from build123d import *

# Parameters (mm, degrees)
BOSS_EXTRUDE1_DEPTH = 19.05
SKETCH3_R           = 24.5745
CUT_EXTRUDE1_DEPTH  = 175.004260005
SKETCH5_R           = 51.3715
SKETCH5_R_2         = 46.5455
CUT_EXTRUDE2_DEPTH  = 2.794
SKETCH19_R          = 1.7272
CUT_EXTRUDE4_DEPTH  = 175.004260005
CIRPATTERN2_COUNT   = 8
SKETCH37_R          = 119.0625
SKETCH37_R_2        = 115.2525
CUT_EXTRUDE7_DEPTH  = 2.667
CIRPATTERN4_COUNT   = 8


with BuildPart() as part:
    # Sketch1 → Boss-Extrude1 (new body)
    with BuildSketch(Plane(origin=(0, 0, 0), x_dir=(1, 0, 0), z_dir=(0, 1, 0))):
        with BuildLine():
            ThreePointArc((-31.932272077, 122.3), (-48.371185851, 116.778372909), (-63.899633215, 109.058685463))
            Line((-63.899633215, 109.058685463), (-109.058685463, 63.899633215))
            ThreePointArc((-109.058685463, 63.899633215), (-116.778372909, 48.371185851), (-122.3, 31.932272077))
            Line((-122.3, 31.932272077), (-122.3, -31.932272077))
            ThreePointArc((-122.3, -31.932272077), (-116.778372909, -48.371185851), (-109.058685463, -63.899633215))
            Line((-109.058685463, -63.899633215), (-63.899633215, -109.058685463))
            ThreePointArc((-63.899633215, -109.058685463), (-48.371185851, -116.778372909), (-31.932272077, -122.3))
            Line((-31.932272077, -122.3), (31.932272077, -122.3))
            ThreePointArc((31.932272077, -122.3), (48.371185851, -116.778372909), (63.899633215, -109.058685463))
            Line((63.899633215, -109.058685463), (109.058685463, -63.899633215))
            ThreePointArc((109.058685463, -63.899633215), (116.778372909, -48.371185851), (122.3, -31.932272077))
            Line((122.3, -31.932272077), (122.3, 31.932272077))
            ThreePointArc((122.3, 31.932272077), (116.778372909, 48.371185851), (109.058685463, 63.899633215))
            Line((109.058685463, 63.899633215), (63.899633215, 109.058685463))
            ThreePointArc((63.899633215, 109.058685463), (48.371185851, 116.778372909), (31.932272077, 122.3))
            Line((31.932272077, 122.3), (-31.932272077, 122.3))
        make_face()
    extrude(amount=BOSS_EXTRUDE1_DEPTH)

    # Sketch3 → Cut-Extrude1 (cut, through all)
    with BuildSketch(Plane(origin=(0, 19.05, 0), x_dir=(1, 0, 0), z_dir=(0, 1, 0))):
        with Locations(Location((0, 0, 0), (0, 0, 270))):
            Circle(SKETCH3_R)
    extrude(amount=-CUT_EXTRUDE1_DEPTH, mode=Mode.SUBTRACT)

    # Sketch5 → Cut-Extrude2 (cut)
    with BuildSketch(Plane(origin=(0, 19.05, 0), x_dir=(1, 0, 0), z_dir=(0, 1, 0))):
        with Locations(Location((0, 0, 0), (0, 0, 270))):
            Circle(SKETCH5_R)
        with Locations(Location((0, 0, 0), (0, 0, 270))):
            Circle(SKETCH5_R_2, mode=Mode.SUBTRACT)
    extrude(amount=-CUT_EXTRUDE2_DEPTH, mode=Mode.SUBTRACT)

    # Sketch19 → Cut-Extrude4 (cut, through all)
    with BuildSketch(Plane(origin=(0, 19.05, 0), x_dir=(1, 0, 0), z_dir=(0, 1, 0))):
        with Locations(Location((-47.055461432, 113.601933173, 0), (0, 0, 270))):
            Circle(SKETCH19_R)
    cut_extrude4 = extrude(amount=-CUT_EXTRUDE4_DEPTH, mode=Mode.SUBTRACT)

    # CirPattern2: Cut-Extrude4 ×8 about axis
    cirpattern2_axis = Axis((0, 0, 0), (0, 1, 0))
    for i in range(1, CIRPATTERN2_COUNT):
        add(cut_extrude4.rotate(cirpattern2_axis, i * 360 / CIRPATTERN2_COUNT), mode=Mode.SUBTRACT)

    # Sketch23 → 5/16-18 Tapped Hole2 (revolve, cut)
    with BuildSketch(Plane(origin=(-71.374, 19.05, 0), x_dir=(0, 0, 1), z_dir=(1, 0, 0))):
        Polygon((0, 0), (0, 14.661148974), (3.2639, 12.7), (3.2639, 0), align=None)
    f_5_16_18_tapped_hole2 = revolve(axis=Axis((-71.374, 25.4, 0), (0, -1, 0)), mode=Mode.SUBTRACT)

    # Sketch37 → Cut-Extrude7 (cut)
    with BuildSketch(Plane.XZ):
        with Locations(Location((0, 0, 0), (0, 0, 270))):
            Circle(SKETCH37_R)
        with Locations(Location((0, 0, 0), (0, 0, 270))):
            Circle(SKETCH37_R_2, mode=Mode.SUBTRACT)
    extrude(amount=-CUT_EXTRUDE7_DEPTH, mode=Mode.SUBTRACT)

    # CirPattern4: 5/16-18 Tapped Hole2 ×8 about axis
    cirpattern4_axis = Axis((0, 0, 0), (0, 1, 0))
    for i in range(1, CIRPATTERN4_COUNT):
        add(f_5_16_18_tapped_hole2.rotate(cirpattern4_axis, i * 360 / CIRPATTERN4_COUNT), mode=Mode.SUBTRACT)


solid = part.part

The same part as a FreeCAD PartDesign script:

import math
import FreeCAD as App
import Part
import Sketcher

V = App.Vector
Q = App.Units.Quantity


def add_polygon(sketch, points):
    """Adds a closed chain of lines whose ends are joined by coincident constraints."""
    first, n = sketch.GeometryCount, len(points)
    for a, b in zip(points, points[1:] + points[:1]):
        sketch.addGeometry(Part.LineSegment(App.Vector(*a, 0), App.Vector(*b, 0)), False)
    for i in range(n):
        sketch.addConstraint(Sketcher.Constraint("Coincident", first + i, 2, first + (i + 1) % n, 1))

doc = App.newDocument("Part")
body = doc.addObject("PartDesign::Body", "Body")

# Sketch on XZ plane
sketch1 = body.newObject("Sketcher::SketchObject", "Sketch")
sketch1.AttachmentSupport = (doc.getObject("XZ_Plane"), [""])
sketch1.MapMode = "FlatFace"
sketch1.addGeometry(Part.ArcOfCircle(Part.Circle(V(0, 0, 0), V(0, 0, 1), 126), math.radians(-120.37), math.radians(-104.63)), False)
sketch1.addGeometry(Part.LineSegment(V(-64, -109, 0), V(-109, -64, 0)), False)
sketch1.addGeometry(Part.ArcOfCircle(Part.Circle(V(0, 0, 0), V(0, 0, 1), 126), math.radians(-165.37), math.radians(-149.63)), False)
sketch1.addGeometry(Part.LineSegment(V(-122, -32, 0), V(-122, 32, 0)), False)
sketch1.addGeometry(Part.ArcOfCircle(Part.Circle(V(0, 0, 0), V(0, 0, 1), 126), math.radians(149.63), math.radians(165.37)), False)
sketch1.addGeometry(Part.LineSegment(V(-109, 64, 0), V(-64, 109, 0)), False)
sketch1.addGeometry(Part.ArcOfCircle(Part.Circle(V(0, 0, 0), V(0, 0, 1), 126), math.radians(104.63), math.radians(120.37)), False)
sketch1.addGeometry(Part.LineSegment(V(-32, 122, 0), V(32, 122, 0)), False)
sketch1.addGeometry(Part.ArcOfCircle(Part.Circle(V(0, 0, 0), V(0, 0, 1), 126), math.radians(59.63), math.radians(75.37)), False)
sketch1.addGeometry(Part.LineSegment(V(64, 109, 0), V(109, 64, 0)), False)
sketch1.addGeometry(Part.ArcOfCircle(Part.Circle(V(0, 0, 0), V(0, 0, 1), 126), math.radians(14.63), math.radians(30.37)), False)
sketch1.addGeometry(Part.LineSegment(V(122, 32, 0), V(122, -32, 0)), False)
sketch1.addGeometry(Part.ArcOfCircle(Part.Circle(V(0, 0, 0), V(0, 0, 1), 126), math.radians(-30.37), math.radians(-14.63)), False)
sketch1.addGeometry(Part.LineSegment(V(109, -64, 0), V(64, -109, 0)), False)
sketch1.addGeometry(Part.ArcOfCircle(Part.Circle(V(0, 0, 0), V(0, 0, 1), 126), math.radians(-75.37), math.radians(-59.63)), False)
sketch1.addGeometry(Part.LineSegment(V(32, -122, 0), V(-32, -122, 0)), False)
sketch1.addConstraint(Sketcher.Constraint("Coincident", 0, 1, 1, 1))
sketch1.addConstraint(Sketcher.Constraint("Coincident", 1, 2, 2, 2))
sketch1.addConstraint(Sketcher.Constraint("Coincident", 2, 1, 3, 1))
sketch1.addConstraint(Sketcher.Constraint("Coincident", 3, 2, 4, 2))
sketch1.addConstraint(Sketcher.Constraint("Coincident", 4, 1, 5, 1))
sketch1.addConstraint(Sketcher.Constraint("Coincident", 5, 2, 6, 2))
sketch1.addConstraint(Sketcher.Constraint("Coincident", 6, 1, 7, 1))
sketch1.addConstraint(Sketcher.Constraint("Coincident", 7, 2, 8, 2))
sketch1.addConstraint(Sketcher.Constraint("Coincident", 8, 1, 9, 1))
sketch1.addConstraint(Sketcher.Constraint("Coincident", 9, 2, 10, 2))
sketch1.addConstraint(Sketcher.Constraint("Coincident", 10, 1, 11, 1))
sketch1.addConstraint(Sketcher.Constraint("Coincident", 11, 2, 12, 2))
sketch1.addConstraint(Sketcher.Constraint("Coincident", 12, 1, 13, 1))
sketch1.addConstraint(Sketcher.Constraint("Coincident", 13, 2, 14, 2))
sketch1.addConstraint(Sketcher.Constraint("Coincident", 14, 1, 15, 1))
sketch1.addConstraint(Sketcher.Constraint("Coincident", 15, 2, 0, 2))
sketch1.addConstraint(Sketcher.Constraint("Vertical", 3))
sketch1.addConstraint(Sketcher.Constraint("Horizontal", 7))
sketch1.addConstraint(Sketcher.Constraint("Vertical", 11))
sketch1.addConstraint(Sketcher.Constraint("Horizontal", 15))
sketch1.addConstraint(Sketcher.Constraint("Coincident", 0, 3, -1, 1))
sketch1.addConstraint(Sketcher.Constraint("Coincident", 2, 3, -1, 1))
sketch1.addConstraint(Sketcher.Constraint("Coincident", 4, 3, -1, 1))
sketch1.addConstraint(Sketcher.Constraint("Coincident", 6, 3, -1, 1))
sketch1.addConstraint(Sketcher.Constraint("Coincident", 8, 3, -1, 1))
sketch1.addConstraint(Sketcher.Constraint("Coincident", 10, 3, -1, 1))
sketch1.addConstraint(Sketcher.Constraint("Coincident", 12, 3, -1, 1))
sketch1.addConstraint(Sketcher.Constraint("Coincident", 14, 3, -1, 1))
sketch1.addConstraint(Sketcher.Constraint("Equal", 0, 2))
sketch1.addConstraint(Sketcher.Constraint("Equal", 2, 4))
sketch1.addConstraint(Sketcher.Constraint("Equal", 4, 6))
sketch1.addConstraint(Sketcher.Constraint("Equal", 6, 8))
sketch1.addConstraint(Sketcher.Constraint("Equal", 8, 10))
sketch1.addConstraint(Sketcher.Constraint("Equal", 10, 12))
sketch1.addConstraint(Sketcher.Constraint("Equal", 12, 14))
sketch1.addConstraint(Sketcher.Constraint("Perpendicular", 1, 5))
sketch1.addConstraint(Sketcher.Constraint("Perpendicular", 5, 9))
sketch1.addConstraint(Sketcher.Constraint("Perpendicular", 9, 13))
sketch1.addConstraint(Sketcher.Constraint("Horizontal", 5, 2, 8, 1))
sketch1.addConstraint(Sketcher.Constraint("Horizontal", 4, 1, 9, 2))
sketch1.addConstraint(Sketcher.Constraint("Horizontal", 3, 2, 10, 1))
sketch1.addConstraint(Sketcher.Constraint("Horizontal", 1, 2, 12, 1))
sketch1.addConstraint(Sketcher.Constraint("Vertical", 1, 2, 4, 1))
sketch1.addConstraint(Sketcher.Constraint("Vertical", 7, 2, 14, 1))
sketch1.addConstraint(Sketcher.Constraint("Equal", 15, 3))
sketch1.addConstraint(Sketcher.Constraint("Radius", 0, 126.4))
sketch1.addConstraint(Sketcher.Constraint("DistanceX", 2, 1, -1, 1, 122.3))
sketch1.addConstraint(Sketcher.Constraint("DistanceY", 1, 2, 2, 1, 31.967361))
pad1 = body.newObject("PartDesign::Pad", "Pad")
pad1.Profile = sketch1
pad1.Length = Q("0.75 in")
pad1.Reversed = True

# Sketch on XZ plane
sketch2 = body.newObject("Sketcher::SketchObject", "Sketch001")
sketch2.AttachmentSupport = (doc.getObject("XZ_Plane"), [""])
sketch2.MapMode = "FlatFace"
sketch2.AttachmentOffset = App.Placement(V(0, 0, -0.75 * 25.4), App.Rotation())
sketch2.addGeometry(Part.Circle(V(0, 0, 0), V(0, 0, 1), 25), False)
sketch2.addConstraint(Sketcher.Constraint("Coincident", 0, 3, -1, 1))
sketch2.addConstraint(Sketcher.Constraint("Diameter", 0, Q("1.935 in")))
pocket1 = body.newObject("PartDesign::Pocket", "Pocket")
pocket1.Profile = sketch2
pocket1.Type = "ThroughAll"
pocket1.Reversed = True

# Sketch on XZ plane
sketch3 = body.newObject("Sketcher::SketchObject", "Sketch002")
sketch3.AttachmentSupport = (doc.getObject("XZ_Plane"), [""])
sketch3.MapMode = "FlatFace"
sketch3.AttachmentOffset = App.Placement(V(0, 0, -0.75 * 25.4), App.Rotation())
sketch3.addGeometry(Part.Circle(V(0, 0, 0), V(0, 0, 1), 51), False)
sketch3.addGeometry(Part.Circle(V(0, 0, 0), V(0, 0, 1), 47), False)
sketch3.addConstraint(Sketcher.Constraint("Coincident", 0, 3, -1, 1))
sketch3.addConstraint(Sketcher.Constraint("Coincident", 1, 3, -1, 1))
sketch3.addConstraint(Sketcher.Constraint("Diameter", 0, Q("4.045 in")))
sketch3.addConstraint(Sketcher.Constraint("Diameter", 1, Q("3.665 in")))
pocket2 = body.newObject("PartDesign::Pocket", "Pocket001")
pocket2.Profile = sketch3
pocket2.Length = Q("0.11 in")
pocket2.Reversed = True

# Sketch on XZ plane
sketch4 = body.newObject("Sketcher::SketchObject", "Sketch003")
sketch4.AttachmentSupport = (doc.getObject("XZ_Plane"), [""])
sketch4.MapMode = "FlatFace"
sketch4.AttachmentOffset = App.Placement(V(0, 0, -0.75 * 25.4), App.Rotation())
sketch4.addGeometry(Part.Circle(V(-47.1, -113.6, 0), V(0, 0, 1), 1.7), False)
sketch4.addConstraint(Sketcher.Constraint("Diameter", 0, Q("0.136 in")))
sketch4.addConstraint(Sketcher.Constraint("DistanceX", 0, 3, -1, 1, 47.055461))
sketch4.addConstraint(Sketcher.Constraint("DistanceY", 0, 3, -1, 1, 113.601933))
pocket3 = body.newObject("PartDesign::Pocket", "Pocket002")
pocket3.Profile = sketch4
pocket3.Type = "ThroughAll"
pocket3.Reversed = True
doc.recompute()

polarpattern = body.newObject("PartDesign::PolarPattern", "PolarPattern")
polarpattern.Originals = [pocket3]
polarpattern.Axis = (doc.getObject("Y_Axis"), [""])
polarpattern.Angle = 360
polarpattern.Occurrences = 8
body.Tip = polarpattern

# Sketch on YZ plane
sketch5 = body.newObject("Sketcher::SketchObject", "Sketch004")
sketch5.AttachmentSupport = (doc.getObject("YZ_Plane"), [""])
sketch5.MapMode = "FlatFace"
sketch5.AttachmentOffset = App.Placement(V(0, 0, -2.81 * 25.4), App.Rotation())
add_polygon(sketch5, [(4.4, 0), (19.1, 0), (19.1, 3.3), (6.3, 3.3)])  # lines 0-3
sketch5.addConstraint(Sketcher.Constraint("Horizontal", 0))
sketch5.addConstraint(Sketcher.Constraint("Vertical", 1))
sketch5.addConstraint(Sketcher.Constraint("Horizontal", 2))
sketch5.addConstraint(Sketcher.Constraint("PointOnObject", 0, 2, -1))
sketch5.addConstraint(Sketcher.Constraint("DistanceX", 2, 2, 2, 1, Q("0.5 in")))
sketch5.addConstraint(Sketcher.Constraint("Angle", 3, Q("-121 deg")))
sketch5.addConstraint(Sketcher.Constraint("DistanceX", -1, 1, 0, 2, Q("0.75 in")))
sketch5.addConstraint(Sketcher.Constraint("DistanceY", 1, 1, 1, 2, Q("0.1285 in")))
groove = body.newObject("PartDesign::Groove", "Groove")
groove.Profile = sketch5
groove.ReferenceAxis = (sketch5, ["H_Axis"])
groove.Angle = 360

# Sketch on XZ plane
sketch6 = body.newObject("Sketcher::SketchObject", "Sketch005")
sketch6.AttachmentSupport = (doc.getObject("XZ_Plane"), [""])
sketch6.MapMode = "FlatFace"
sketch6.addGeometry(Part.Circle(V(0, 0, 0), V(0, 0, 1), 119), False)
sketch6.addGeometry(Part.Circle(V(0, 0, 0), V(0, 0, 1), 115), False)
sketch6.addConstraint(Sketcher.Constraint("Coincident", 0, 3, -1, 1))
sketch6.addConstraint(Sketcher.Constraint("Coincident", 1, 3, -1, 1))
sketch6.addConstraint(Sketcher.Constraint("Diameter", 0, Q("9.375 in")))
sketch6.addConstraint(Sketcher.Constraint("Diameter", 1, Q("9.075 in")))
pocket4 = body.newObject("PartDesign::Pocket", "Pocket003")
pocket4.Profile = sketch6
pocket4.Length = Q("0.105 in")
doc.recompute()

polarpattern2 = body.newObject("PartDesign::PolarPattern", "PolarPattern001")
polarpattern2.Originals = [groove]
polarpattern2.Axis = (doc.getObject("Y_Axis"), [""])
polarpattern2.Angle = 360
polarpattern2.Occurrences = 8
body.Tip = polarpattern2

doc.recompute()
